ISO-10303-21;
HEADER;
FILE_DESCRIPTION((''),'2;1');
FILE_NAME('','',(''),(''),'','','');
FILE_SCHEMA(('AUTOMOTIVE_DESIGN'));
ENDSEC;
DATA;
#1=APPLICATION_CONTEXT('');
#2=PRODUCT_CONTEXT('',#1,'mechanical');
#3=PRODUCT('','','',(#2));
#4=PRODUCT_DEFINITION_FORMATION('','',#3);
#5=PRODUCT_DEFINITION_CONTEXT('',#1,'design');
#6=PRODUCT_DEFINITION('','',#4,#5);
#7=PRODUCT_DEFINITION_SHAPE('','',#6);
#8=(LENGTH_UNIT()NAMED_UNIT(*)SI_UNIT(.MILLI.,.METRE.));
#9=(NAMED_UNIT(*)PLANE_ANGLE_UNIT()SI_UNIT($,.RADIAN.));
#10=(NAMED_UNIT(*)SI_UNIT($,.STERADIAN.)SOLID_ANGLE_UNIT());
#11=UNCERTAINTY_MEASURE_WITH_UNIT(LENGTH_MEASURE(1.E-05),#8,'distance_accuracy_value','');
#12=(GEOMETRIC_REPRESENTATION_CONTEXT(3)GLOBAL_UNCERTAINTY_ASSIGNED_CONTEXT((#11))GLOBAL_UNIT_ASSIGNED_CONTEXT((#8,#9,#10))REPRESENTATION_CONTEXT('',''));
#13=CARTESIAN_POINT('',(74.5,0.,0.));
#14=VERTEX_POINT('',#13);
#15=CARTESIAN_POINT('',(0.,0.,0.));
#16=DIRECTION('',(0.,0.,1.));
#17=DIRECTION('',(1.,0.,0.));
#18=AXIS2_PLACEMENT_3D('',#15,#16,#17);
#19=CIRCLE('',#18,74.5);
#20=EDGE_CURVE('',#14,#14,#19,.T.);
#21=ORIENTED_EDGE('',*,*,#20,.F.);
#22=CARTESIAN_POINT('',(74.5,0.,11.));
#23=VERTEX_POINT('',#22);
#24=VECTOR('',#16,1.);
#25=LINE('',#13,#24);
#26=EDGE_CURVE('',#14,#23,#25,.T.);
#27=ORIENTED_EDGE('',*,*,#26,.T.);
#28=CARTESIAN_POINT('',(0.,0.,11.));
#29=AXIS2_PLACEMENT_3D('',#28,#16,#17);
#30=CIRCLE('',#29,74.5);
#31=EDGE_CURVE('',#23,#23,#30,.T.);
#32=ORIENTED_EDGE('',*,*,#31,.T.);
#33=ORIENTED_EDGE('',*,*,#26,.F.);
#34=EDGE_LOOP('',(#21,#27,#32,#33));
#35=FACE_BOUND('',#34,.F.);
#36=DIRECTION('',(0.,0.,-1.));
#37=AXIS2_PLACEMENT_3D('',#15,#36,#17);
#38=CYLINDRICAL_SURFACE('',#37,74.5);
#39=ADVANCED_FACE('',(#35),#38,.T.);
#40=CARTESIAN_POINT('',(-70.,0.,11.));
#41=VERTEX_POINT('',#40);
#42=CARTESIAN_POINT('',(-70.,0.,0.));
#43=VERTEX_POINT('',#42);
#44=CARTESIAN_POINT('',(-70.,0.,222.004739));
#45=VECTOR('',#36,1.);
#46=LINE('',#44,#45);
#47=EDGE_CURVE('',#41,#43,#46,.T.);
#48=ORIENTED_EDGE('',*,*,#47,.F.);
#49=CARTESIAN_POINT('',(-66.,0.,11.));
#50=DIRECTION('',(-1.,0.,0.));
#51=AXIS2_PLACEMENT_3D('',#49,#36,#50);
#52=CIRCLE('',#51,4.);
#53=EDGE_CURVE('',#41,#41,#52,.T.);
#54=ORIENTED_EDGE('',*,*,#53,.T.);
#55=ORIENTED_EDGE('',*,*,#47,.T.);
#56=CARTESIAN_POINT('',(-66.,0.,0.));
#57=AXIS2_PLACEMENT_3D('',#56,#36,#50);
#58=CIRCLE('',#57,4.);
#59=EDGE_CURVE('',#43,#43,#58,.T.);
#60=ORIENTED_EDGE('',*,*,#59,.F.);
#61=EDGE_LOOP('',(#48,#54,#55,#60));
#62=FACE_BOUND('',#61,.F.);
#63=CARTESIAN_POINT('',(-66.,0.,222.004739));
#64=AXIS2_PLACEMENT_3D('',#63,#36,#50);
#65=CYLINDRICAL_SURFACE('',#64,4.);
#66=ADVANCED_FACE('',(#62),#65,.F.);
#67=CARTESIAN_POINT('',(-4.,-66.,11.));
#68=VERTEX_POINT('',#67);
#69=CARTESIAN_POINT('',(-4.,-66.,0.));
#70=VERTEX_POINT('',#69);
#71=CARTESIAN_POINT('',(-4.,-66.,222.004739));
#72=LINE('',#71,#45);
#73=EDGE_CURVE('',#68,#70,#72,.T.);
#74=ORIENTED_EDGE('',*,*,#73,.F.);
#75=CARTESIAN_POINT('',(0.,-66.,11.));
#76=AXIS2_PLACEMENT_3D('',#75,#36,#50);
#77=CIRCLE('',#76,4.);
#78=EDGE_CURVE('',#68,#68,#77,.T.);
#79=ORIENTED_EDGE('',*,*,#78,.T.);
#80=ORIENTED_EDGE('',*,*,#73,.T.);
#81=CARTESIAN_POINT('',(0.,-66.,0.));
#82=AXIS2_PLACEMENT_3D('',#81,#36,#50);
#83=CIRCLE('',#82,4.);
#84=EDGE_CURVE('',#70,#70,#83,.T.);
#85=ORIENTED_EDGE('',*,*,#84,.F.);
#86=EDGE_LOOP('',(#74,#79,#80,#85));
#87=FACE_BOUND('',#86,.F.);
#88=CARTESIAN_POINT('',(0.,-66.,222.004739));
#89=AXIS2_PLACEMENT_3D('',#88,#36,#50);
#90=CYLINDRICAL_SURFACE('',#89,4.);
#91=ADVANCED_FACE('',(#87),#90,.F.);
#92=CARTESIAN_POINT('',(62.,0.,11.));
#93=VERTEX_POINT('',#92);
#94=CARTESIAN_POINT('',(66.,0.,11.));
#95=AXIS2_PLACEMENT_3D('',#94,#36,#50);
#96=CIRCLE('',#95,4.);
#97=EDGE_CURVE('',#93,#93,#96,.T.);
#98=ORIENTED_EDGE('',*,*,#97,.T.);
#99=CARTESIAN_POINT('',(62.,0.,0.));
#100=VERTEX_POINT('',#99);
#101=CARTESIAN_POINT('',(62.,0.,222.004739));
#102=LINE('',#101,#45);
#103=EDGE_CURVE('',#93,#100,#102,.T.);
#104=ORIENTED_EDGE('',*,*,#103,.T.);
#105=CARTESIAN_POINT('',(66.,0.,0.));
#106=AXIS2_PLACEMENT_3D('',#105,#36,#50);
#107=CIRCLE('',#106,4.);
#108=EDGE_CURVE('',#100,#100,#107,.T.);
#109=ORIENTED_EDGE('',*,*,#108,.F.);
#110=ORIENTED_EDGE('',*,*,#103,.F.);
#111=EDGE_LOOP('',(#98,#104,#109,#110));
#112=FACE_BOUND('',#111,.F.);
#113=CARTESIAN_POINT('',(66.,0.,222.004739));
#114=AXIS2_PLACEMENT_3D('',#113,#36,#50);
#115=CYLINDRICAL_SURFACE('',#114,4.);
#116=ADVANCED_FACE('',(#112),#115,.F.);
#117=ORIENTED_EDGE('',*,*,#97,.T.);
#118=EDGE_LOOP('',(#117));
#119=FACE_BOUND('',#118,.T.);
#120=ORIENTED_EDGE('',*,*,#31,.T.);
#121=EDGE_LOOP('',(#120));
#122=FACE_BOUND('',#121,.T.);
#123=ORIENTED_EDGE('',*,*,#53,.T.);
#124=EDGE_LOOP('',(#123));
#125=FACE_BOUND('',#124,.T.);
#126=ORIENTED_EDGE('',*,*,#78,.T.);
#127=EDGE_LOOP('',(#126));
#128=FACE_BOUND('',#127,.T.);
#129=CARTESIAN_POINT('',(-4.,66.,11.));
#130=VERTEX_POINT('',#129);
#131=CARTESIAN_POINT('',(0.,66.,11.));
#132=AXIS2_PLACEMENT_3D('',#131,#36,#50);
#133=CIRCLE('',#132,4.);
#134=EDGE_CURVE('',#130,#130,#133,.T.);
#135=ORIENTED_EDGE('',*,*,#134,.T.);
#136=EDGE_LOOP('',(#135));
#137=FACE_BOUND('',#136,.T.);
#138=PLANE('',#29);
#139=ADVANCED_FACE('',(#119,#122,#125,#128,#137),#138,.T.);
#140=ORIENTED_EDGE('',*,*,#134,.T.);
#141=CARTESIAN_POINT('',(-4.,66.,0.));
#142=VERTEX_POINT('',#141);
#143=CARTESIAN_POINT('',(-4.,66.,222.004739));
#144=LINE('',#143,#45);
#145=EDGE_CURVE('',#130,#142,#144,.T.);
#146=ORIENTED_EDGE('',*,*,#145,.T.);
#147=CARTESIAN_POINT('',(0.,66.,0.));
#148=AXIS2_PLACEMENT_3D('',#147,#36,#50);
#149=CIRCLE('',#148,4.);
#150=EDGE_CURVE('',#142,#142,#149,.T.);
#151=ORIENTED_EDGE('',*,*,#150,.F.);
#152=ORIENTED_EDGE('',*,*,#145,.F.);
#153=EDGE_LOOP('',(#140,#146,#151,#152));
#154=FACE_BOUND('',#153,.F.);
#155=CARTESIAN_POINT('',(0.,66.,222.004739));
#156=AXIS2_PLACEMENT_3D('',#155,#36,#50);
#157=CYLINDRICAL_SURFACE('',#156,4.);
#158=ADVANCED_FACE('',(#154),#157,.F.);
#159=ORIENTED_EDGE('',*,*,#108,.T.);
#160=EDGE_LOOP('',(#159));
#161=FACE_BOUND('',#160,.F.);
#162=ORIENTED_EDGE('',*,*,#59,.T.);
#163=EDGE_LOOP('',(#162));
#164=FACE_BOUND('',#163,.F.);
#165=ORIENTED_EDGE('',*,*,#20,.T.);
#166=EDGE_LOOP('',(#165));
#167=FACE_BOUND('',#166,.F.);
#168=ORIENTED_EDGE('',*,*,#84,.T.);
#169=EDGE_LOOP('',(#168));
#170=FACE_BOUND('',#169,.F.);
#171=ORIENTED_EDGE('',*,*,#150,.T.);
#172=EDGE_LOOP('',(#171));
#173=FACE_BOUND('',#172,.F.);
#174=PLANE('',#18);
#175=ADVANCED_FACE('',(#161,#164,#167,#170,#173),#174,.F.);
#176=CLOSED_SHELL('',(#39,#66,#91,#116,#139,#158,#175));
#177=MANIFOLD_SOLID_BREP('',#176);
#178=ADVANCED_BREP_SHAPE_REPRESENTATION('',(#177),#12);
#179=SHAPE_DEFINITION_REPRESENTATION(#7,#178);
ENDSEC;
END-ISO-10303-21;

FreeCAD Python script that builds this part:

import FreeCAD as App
import Part
import Sketcher

V = App.Vector

doc = App.newDocument("Part")
params = doc.addObject("Spreadsheet::Sheet", "Params")
for row, (alias, value) in enumerate([
    ("sketch1_diameter", "149 mm"),
    ("pad1_length", "11 mm"),
    ("sketch2_diameter", "8 mm"),
    ("hole_diameter", "8 mm"),
], start=1):
    params.set(f"A{row}", alias)
    params.set(f"B{row}", "=" + value)
    params.setAlias(f"B{row}", alias)

body = doc.addObject("PartDesign::Body", "Body")

# Sketch on XY plane
sketch1 = body.newObject("Sketcher::SketchObject", "Sketch")
sketch1.AttachmentSupport = (doc.getObject("XY_Plane"), [""])
sketch1.MapMode = "FlatFace"
sketch1.addGeometry(Part.Circle(V(0, 0, 0), V(0, 0, 1), 74), False)
sketch1.addConstraint([
    Sketcher.Constraint("Coincident", 0, 3, -1, 1),
    Sketcher.Constraint("Diameter", 0, 149.0),
])
sketch1.setExpression("Constraints[1]", "Params.sketch1_diameter")
pad1 = body.newObject("PartDesign::Pad", "Pad")
pad1.Profile = sketch1
pad1.setExpression("Length", "Params.pad1_length")

# Sketch on XY plane
sketch2 = body.newObject("Sketcher::SketchObject", "Sketch001")
sketch2.AttachmentSupport = (doc.getObject("XY_Plane"), [""])
sketch2.MapMode = "FlatFace"
sketch2.AttachmentOffset = App.Placement(V(0, 0, 11), App.Rotation())
sketch2.addGeometry([
    Part.Circle(V(0, 66, 0), V(0, 0, 1), 4),
    Part.Circle(V(-66, 0, 0), V(0, 0, 1), 4),
    Part.Circle(V(66, 0, 0), V(0, 0, 1), 4),
    Part.Circle(V(0, -66, 0), V(0, 0, 1), 4),
], False)
sketch2.addConstraint([
    Sketcher.Constraint("Equal", 0, 1),
    Sketcher.Constraint("Equal", 1, 2),
    Sketcher.Constraint("Equal", 2, 3),
    Sketcher.Constraint("Symmetric", 1, 3, 2, 3, -1, 1),
    Sketcher.Constraint("Symmetric", 0, 3, 3, 3, -1, 1),
    Sketcher.Constraint("PointOnObject", 0, 3, -2),
    Sketcher.Constraint("PointOnObject", 1, 3, -1),
    Sketcher.Constraint("Diameter", 0, 8.0),
    Sketcher.Constraint("DistanceY", -1, 1, 0, 3, 66.0),
    Sketcher.Constraint("DistanceX", 1, 3, -1, 1, 66.0),
])
sketch2.setExpression("Constraints[7]", "Params.sketch2_diameter")
doc.recompute()
hole = body.newObject("PartDesign::Hole", "Hole")
hole.Profile = sketch2
hole.ThreadType = "None"
hole.setExpression("Diameter", "Params.hole_diameter")
hole.DepthType = "ThroughAll"

doc.recompute()
